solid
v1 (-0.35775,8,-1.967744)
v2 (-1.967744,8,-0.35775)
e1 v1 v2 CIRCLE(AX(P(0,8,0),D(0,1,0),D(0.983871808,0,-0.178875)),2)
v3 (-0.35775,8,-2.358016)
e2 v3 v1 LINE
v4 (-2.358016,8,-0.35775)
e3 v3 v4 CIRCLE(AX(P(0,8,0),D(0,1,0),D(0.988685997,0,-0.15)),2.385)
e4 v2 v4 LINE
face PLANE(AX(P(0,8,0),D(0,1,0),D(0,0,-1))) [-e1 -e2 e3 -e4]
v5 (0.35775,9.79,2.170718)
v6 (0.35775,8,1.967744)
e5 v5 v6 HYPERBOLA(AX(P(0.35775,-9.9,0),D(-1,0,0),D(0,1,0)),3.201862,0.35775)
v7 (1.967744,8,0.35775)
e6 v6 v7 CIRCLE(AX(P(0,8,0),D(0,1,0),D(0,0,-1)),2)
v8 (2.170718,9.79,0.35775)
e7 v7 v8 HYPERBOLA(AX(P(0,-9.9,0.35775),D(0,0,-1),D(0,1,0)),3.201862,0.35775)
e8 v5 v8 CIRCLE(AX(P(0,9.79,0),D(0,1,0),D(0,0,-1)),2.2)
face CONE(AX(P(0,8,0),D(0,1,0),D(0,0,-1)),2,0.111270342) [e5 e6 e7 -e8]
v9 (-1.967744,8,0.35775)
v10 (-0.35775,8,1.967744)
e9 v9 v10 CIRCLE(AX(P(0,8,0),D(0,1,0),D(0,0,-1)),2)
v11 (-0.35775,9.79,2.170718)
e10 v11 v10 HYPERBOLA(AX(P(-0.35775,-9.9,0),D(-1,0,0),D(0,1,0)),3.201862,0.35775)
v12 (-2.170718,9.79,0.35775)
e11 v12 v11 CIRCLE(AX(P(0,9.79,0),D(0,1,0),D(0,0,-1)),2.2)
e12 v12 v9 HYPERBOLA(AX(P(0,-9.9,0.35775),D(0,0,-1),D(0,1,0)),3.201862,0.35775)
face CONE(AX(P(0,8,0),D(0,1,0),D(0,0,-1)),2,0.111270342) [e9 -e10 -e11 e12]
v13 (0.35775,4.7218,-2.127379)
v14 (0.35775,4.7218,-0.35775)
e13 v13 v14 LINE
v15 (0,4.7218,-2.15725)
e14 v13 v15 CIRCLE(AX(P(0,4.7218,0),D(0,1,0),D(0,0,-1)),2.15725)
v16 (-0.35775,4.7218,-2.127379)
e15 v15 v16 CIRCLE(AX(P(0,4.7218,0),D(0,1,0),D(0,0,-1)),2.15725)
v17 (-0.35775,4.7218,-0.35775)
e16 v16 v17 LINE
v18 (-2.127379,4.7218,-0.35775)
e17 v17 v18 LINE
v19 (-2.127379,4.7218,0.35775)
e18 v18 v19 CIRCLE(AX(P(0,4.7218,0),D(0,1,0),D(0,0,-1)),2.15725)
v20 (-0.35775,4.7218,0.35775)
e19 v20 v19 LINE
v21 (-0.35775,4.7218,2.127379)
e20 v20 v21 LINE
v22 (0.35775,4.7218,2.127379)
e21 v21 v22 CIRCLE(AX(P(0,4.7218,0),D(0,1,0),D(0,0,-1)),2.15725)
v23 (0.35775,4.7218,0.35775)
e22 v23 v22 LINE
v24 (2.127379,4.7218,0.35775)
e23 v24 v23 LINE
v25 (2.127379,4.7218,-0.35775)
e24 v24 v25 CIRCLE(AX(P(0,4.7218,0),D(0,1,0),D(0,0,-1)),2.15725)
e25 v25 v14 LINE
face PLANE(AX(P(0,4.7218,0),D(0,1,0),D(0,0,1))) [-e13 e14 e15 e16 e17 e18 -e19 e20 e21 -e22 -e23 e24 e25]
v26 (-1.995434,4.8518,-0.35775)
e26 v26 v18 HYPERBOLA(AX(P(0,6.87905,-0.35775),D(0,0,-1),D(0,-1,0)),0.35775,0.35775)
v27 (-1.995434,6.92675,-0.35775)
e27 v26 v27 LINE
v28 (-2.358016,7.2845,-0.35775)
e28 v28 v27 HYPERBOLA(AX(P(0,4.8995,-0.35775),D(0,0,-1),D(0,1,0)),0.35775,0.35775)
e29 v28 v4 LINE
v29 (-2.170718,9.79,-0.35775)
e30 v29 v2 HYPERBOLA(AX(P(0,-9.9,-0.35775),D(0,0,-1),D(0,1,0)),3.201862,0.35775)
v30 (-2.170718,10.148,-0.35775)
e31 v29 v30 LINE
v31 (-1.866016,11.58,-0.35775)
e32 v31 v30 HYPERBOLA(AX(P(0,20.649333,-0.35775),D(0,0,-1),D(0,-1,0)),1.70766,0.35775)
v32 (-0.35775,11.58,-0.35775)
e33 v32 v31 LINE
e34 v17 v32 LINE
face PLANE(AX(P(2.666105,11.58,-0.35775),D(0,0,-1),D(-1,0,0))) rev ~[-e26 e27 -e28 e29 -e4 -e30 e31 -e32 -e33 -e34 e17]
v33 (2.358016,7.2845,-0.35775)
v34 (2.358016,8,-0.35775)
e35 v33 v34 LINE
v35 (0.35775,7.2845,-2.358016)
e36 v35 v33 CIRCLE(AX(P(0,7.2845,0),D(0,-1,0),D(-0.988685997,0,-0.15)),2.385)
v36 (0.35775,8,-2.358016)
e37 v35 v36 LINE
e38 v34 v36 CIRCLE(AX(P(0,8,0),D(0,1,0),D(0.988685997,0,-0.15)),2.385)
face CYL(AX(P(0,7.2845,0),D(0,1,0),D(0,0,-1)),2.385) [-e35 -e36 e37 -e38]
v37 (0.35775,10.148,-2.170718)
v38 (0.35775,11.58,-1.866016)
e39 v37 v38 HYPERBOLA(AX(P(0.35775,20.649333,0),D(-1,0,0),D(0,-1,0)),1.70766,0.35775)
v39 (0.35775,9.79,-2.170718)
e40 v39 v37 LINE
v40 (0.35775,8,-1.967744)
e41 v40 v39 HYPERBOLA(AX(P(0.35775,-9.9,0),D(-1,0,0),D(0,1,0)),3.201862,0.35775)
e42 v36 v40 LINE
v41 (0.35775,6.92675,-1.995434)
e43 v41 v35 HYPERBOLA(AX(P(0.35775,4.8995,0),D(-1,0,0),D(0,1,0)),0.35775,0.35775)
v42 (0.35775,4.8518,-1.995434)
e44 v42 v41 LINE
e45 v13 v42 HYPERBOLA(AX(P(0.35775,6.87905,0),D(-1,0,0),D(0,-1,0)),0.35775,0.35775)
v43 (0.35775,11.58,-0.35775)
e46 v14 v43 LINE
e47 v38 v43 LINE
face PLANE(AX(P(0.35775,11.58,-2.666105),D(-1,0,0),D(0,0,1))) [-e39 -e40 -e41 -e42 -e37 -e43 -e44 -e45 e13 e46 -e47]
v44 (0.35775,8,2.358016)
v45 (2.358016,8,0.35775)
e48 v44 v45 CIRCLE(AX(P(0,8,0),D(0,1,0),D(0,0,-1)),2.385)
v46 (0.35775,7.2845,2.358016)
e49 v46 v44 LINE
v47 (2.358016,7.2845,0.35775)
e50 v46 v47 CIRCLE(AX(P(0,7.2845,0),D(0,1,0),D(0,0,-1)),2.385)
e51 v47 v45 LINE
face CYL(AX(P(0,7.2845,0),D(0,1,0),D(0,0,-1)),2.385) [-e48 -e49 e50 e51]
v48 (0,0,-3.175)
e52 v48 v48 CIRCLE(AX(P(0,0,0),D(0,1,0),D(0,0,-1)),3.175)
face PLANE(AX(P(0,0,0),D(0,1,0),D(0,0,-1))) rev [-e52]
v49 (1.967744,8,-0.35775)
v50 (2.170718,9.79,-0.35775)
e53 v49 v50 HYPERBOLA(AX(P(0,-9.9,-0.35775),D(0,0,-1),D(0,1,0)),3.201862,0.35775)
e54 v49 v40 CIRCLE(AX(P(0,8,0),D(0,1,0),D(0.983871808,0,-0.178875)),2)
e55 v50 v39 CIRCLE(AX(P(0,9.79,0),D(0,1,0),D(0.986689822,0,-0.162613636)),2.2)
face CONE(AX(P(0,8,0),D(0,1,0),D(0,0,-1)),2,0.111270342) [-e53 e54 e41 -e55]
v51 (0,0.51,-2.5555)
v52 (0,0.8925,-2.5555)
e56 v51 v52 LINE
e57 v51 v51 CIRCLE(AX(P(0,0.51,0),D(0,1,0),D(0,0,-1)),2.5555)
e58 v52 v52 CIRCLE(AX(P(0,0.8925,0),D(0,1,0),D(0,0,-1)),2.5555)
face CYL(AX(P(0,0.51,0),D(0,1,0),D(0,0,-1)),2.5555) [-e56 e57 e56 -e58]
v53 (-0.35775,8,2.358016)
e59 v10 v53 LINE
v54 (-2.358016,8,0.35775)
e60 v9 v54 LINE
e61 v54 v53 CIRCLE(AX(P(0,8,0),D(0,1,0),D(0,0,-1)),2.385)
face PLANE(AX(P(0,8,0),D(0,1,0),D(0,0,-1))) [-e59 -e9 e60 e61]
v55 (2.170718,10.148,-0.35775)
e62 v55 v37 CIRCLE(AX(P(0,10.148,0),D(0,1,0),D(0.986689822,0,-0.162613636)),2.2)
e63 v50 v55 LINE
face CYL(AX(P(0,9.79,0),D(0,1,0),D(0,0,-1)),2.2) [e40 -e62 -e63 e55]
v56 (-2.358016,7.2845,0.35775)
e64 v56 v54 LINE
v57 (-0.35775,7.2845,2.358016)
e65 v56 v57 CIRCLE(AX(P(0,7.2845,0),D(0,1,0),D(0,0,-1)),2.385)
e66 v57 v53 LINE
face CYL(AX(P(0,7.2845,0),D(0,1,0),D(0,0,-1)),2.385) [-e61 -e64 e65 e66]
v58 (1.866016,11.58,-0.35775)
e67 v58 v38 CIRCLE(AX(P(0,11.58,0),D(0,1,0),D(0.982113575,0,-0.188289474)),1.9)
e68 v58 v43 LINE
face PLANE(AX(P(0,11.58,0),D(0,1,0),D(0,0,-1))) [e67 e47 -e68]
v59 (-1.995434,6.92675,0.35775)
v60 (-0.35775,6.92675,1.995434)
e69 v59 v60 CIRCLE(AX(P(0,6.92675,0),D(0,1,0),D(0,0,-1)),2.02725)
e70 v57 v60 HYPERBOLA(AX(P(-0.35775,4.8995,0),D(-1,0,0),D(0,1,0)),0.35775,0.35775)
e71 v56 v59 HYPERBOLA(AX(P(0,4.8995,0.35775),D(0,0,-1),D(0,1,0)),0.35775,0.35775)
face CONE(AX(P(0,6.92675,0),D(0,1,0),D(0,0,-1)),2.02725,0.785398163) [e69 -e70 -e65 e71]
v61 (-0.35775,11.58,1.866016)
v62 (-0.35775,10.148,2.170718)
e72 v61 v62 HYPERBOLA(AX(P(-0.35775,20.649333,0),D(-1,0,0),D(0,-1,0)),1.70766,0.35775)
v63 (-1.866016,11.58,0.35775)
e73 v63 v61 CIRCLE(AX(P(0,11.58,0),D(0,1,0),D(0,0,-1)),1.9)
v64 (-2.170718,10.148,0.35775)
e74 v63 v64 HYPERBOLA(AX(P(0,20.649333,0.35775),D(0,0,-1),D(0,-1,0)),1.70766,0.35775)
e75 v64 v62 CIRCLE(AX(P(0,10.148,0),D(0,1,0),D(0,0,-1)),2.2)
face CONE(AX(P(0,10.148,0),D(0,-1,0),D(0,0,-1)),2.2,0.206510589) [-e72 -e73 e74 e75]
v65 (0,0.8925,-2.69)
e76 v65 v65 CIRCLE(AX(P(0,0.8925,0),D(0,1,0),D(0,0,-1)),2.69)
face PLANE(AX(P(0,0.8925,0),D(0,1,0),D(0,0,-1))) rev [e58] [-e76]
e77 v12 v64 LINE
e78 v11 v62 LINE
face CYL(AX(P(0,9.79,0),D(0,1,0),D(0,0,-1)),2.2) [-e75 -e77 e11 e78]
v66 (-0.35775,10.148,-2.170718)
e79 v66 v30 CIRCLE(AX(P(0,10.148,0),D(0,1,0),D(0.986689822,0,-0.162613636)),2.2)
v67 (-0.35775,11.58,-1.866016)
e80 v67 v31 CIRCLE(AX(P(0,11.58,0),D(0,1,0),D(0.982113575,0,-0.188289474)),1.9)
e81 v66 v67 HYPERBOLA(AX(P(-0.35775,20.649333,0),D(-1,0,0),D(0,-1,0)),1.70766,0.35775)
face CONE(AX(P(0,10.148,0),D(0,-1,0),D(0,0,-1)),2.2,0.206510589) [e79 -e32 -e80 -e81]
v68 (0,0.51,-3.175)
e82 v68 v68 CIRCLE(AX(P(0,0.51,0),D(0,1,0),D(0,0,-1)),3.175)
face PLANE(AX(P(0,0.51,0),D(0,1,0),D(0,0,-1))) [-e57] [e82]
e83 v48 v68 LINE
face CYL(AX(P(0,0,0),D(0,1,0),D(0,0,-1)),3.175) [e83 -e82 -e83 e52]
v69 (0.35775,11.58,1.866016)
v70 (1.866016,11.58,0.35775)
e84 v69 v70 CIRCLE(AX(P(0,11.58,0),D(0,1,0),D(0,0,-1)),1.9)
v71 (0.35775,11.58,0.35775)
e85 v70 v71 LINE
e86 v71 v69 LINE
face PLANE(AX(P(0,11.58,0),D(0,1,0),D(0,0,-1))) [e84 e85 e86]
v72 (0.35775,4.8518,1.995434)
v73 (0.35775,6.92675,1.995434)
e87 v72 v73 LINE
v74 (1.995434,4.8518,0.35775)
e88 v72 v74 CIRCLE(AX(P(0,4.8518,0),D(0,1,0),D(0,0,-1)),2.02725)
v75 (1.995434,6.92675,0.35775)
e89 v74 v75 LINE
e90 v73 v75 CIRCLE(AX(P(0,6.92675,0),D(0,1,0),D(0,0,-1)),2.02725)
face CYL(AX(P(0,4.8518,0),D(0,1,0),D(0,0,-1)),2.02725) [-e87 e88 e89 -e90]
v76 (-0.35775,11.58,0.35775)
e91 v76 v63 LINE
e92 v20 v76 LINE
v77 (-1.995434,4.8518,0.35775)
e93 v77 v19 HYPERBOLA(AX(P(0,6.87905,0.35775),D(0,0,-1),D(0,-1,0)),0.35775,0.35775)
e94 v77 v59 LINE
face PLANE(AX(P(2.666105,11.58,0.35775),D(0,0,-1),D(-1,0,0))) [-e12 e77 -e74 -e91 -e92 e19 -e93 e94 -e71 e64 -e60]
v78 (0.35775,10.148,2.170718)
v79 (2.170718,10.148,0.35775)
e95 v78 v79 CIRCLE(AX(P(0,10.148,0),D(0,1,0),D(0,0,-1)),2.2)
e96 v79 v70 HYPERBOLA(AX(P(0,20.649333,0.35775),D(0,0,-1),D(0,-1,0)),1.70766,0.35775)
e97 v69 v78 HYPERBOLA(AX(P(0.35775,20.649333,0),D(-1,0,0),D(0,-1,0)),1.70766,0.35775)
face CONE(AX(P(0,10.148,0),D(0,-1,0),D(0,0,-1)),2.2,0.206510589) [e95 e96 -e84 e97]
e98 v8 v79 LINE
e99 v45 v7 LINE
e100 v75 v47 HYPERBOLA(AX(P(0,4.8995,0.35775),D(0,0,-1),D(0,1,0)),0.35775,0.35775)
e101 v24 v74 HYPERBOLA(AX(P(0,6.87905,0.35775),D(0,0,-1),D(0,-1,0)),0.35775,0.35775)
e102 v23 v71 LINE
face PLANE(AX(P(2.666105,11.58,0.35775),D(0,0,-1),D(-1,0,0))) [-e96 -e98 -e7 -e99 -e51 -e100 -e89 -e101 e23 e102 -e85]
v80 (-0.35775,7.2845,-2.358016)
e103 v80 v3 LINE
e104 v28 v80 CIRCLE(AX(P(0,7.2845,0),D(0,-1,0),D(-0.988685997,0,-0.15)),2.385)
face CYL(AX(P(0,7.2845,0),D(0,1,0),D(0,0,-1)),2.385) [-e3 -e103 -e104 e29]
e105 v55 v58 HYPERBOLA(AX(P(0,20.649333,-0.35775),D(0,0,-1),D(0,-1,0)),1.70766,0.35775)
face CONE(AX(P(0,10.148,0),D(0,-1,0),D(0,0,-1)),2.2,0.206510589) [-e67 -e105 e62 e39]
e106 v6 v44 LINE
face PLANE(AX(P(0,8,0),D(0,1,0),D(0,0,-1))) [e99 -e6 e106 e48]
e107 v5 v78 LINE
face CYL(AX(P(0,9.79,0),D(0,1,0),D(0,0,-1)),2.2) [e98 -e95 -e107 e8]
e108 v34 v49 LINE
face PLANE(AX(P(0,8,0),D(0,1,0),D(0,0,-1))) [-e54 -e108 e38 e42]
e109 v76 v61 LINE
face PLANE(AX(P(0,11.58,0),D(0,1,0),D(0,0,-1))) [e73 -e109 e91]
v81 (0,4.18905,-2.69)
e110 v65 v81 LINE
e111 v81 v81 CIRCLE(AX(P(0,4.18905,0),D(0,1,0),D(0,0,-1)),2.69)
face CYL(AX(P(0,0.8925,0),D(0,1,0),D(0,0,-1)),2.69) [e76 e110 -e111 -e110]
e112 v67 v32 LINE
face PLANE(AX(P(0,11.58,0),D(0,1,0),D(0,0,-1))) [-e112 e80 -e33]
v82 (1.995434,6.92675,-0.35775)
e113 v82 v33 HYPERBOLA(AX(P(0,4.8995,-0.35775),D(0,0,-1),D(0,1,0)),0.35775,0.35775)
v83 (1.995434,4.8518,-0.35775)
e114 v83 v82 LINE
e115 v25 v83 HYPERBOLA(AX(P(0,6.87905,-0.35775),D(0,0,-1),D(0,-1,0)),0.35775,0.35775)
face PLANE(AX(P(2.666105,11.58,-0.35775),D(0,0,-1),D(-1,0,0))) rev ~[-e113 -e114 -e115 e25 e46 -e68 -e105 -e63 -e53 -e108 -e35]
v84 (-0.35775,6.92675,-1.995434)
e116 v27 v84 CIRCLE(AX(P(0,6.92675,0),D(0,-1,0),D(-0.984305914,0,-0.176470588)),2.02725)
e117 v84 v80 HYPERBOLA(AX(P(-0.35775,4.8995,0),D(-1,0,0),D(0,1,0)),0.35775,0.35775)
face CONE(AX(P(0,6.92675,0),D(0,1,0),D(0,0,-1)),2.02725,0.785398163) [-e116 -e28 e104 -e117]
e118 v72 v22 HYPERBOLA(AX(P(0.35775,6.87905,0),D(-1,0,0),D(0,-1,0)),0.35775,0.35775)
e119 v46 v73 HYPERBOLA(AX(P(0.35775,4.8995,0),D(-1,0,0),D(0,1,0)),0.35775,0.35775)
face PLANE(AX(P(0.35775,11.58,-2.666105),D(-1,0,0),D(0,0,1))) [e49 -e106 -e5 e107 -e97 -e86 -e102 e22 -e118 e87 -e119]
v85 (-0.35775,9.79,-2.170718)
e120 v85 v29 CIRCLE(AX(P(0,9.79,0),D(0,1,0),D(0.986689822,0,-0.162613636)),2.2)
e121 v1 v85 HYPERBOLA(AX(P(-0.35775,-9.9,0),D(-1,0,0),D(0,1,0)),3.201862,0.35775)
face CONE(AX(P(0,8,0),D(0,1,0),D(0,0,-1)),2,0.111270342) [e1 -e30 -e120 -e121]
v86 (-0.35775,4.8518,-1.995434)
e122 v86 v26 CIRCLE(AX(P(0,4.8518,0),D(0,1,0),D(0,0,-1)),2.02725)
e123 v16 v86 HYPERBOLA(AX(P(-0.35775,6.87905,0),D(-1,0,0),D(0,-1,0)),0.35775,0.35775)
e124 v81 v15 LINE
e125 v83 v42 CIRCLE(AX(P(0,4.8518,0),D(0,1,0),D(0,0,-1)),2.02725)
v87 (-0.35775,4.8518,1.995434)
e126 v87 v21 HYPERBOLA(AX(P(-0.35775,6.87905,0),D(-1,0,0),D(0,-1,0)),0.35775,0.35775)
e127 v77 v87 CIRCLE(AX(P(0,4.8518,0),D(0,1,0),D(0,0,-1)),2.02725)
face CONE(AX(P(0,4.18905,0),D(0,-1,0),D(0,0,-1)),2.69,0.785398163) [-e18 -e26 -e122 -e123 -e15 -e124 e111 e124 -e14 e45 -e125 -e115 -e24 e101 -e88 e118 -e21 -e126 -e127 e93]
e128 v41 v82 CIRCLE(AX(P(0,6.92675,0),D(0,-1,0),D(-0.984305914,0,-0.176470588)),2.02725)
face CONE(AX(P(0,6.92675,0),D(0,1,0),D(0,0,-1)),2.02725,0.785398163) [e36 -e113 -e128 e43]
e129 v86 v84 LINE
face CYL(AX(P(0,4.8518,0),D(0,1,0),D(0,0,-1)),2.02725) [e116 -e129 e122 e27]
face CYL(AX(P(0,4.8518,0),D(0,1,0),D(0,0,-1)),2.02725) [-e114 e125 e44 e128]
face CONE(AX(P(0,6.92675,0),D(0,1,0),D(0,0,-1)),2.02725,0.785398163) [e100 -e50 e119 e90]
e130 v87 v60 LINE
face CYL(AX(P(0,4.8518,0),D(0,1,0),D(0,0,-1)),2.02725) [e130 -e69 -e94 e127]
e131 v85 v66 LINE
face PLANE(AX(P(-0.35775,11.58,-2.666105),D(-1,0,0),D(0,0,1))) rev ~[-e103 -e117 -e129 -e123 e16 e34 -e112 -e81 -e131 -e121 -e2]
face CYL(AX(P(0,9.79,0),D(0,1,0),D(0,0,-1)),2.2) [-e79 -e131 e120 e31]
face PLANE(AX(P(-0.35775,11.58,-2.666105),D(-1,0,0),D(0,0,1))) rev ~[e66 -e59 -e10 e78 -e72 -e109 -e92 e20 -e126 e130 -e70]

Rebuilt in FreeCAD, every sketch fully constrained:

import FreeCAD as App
import Part
import Sketcher

V = App.Vector
Q = App.Units.Quantity

doc = App.newDocument("Part")
body = doc.addObject("PartDesign::Body", "Body")

# Sketch on XY plane
sketch1 = body.newObject("Sketcher::SketchObject", "Sketch")
sketch1.AttachmentSupport = (doc.getObject("XY_Plane"), [""])
sketch1.MapMode = "FlatFace"
sketch1.addGeometry(Part.LineSegment(V(2.56, 0.51, 0), V(2.56, 0.89, 0)), False)
sketch1.addGeometry(Part.LineSegment(V(2.56, 0.89, 0), V(2.69, 0.89, 0)), False)
sketch1.addGeometry(Part.LineSegment(V(2.69, 0.89, 0), V(2.69, 4.19, 0)), False)
sketch1.addGeometry(Part.LineSegment(V(2.69, 4.19, 0), V(2.03, 4.85, 0)), False)
sketch1.addGeometry(Part.LineSegment(V(2.03, 4.85, 0), V(2.03, 6.93, 0)), False)
sketch1.addGeometry(Part.LineSegment(V(2.03, 6.93, 0), V(2.38, 7.28, 0)), False)
sketch1.addGeometry(Part.LineSegment(V(2.38, 7.28, 0), V(2.38, 8, 0)), False)
sketch1.addGeometry(Part.LineSegment(V(2.38, 8, 0), V(2, 8, 0)), False)
sketch1.addGeometry(Part.LineSegment(V(2, 8, 0), V(2.2, 9.79, 0)), False)
sketch1.addGeometry(Part.LineSegment(V(2.2, 9.79, 0), V(2.2, 10.15, 0)), False)
sketch1.addGeometry(Part.LineSegment(V(2.2, 10.15, 0), V(1.9, 11.58, 0)), False)
sketch1.addGeometry(Part.LineSegment(V(1.9, 11.58, 0), V(0, 11.58, 0)), False)
sketch1.addGeometry(Part.LineSegment(V(0, 11.58, 0), V(0, 0, 0)), False)
sketch1.addGeometry(Part.LineSegment(V(0, 0, 0), V(3.17, 0, 0)), False)
sketch1.addGeometry(Part.LineSegment(V(3.17, 0, 0), V(3.17, 0.51, 0)), False)
sketch1.addGeometry(Part.LineSegment(V(3.17, 0.51, 0), V(2.56, 0.51, 0)), False)
sketch1.addConstraint(Sketcher.Constraint("Coincident", 0, 2, 1, 1))
sketch1.addConstraint(Sketcher.Constraint("Coincident", 1, 2, 2, 1))
sketch1.addConstraint(Sketcher.Constraint("Coincident", 2, 2, 3, 1))
sketch1.addConstraint(Sketcher.Constraint("Coincident", 3, 2, 4, 1))
sketch1.addConstraint(Sketcher.Constraint("Coincident", 4, 2, 5, 1))
sketch1.addConstraint(Sketcher.Constraint("Coincident", 5, 2, 6, 1))
sketch1.addConstraint(Sketcher.Constraint("Coincident", 6, 2, 7, 1))
sketch1.addConstraint(Sketcher.Constraint("Coincident", 7, 2, 8, 1))
sketch1.addConstraint(Sketcher.Constraint("Coincident", 8, 2, 9, 1))
sketch1.addConstraint(Sketcher.Constraint("Coincident", 9, 2, 10, 1))
sketch1.addConstraint(Sketcher.Constraint("Coincident", 10, 2, 11, 1))
sketch1.addConstraint(Sketcher.Constraint("Coincident", 11, 2, 12, 1))
sketch1.addConstraint(Sketcher.Constraint("Coincident", 12, 2, 13, 1))
sketch1.addConstraint(Sketcher.Constraint("Coincident", 13, 2, 14, 1))
sketch1.addConstraint(Sketcher.Constraint("Coincident", 14, 2, 15, 1))
sketch1.addConstraint(Sketcher.Constraint("Coincident", 15, 2, 0, 1))
sketch1.addConstraint(Sketcher.Constraint("Vertical", 0))
sketch1.addConstraint(Sketcher.Constraint("Horizontal", 1))
sketch1.addConstraint(Sketcher.Constraint("Vertical", 2))
sketch1.addConstraint(Sketcher.Constraint("Vertical", 4))
sketch1.addConstraint(Sketcher.Constraint("Vertical", 6))
sketch1.addConstraint(Sketcher.Constraint("Horizontal", 7))
sketch1.addConstraint(Sketcher.Constraint("Vertical", 9))
sketch1.addConstraint(Sketcher.Constraint("Horizontal", 11))
sketch1.addConstraint(Sketcher.Constraint("Vertical", 12))
sketch1.addConstraint(Sketcher.Constraint("Horizontal", 13))
sketch1.addConstraint(Sketcher.Constraint("Vertical", 14))
sketch1.addConstraint(Sketcher.Constraint("Horizontal", 15))
sketch1.addConstraint(Sketcher.Constraint("Coincident", 12, 2, -1, 1))
sketch1.addConstraint(Sketcher.Constraint("Perpendicular", 3, 5))
sketch1.addConstraint(Sketcher.Constraint("Angle", 3, Q("135 deg")))
sketch1.addConstraint(Sketcher.Constraint("DistanceX", 11, 2, 11, 1, 1.9))
sketch1.addConstraint(Sketcher.Constraint("DistanceY", -1, 1, 6, 2, 8.0))
sketch1.addConstraint(Sketcher.Constraint("DistanceX", -1, 1, 7, 2, 2.0))
sketch1.addConstraint(Sketcher.Constraint("DistanceY", 12, 2, 12, 1, 11.58))
sketch1.addConstraint(Sketcher.Constraint("DistanceY", 14, 1, 14, 2, 0.51))
sketch1.addConstraint(Sketcher.Constraint("DistanceX", -1, 1, 8, 2, 2.2))
sketch1.addConstraint(Sketcher.Constraint("DistanceX", 7, 2, 7, 1, 0.385))
sketch1.addConstraint(Sketcher.Constraint("DistanceX", 13, 1, 13, 2, 3.175))
sketch1.addConstraint(Sketcher.Constraint("DistanceY", 9, 1, 9, 2, 0.358))
sketch1.addConstraint(Sketcher.Constraint("DistanceX", -1, 1, 1, 2, 2.69))
sketch1.addConstraint(Sketcher.Constraint("DistanceY", -1, 1, 8, 2, 9.79))
sketch1.addConstraint(Sketcher.Constraint("DistanceX", 1, 1, 1, 2, 0.1345))
sketch1.addConstraint(Sketcher.Constraint("DistanceY", 0, 1, 0, 2, 0.3825))
sketch1.addConstraint(Sketcher.Constraint("DistanceY", 6, 1, 6, 2, 0.7155))
sketch1.addConstraint(Sketcher.Constraint("DistanceY", 2, 1, 2, 2, 3.29655))
sketch1.addConstraint(Sketcher.Constraint("DistanceY", 4, 1, 4, 2, 2.07495))
revolution = body.newObject("PartDesign::Revolution", "Revolution")
revolution.Profile = sketch1
revolution.ReferenceAxis = (sketch1, ["V_Axis"])
revolution.Angle = 360

# Sketch on XZ plane
sketch2 = body.newObject("Sketcher::SketchObject", "Sketch001")
sketch2.AttachmentSupport = (doc.getObject("XZ_Plane"), [""])
sketch2.MapMode = "FlatFace"
sketch2.AttachmentOffset = App.Placement(V(0, 0, -11.58), App.Rotation())
sketch2.addGeometry(Part.LineSegment(V(2.7, 0.4, 0), V(2.7, -0.4, 0)), False)
sketch2.addGeometry(Part.LineSegment(V(2.7, -0.4, 0), V(-2.7, -0.4, 0)), False)
sketch2.addGeometry(Part.LineSegment(V(-2.7, -0.4, 0), V(-2.7, 0.4, 0)), False)
sketch2.addGeometry(Part.LineSegment(V(-2.7, 0.4, 0), V(2.7, 0.4, 0)), False)
sketch2.addConstraint(Sketcher.Constraint("Coincident", 0, 2, 1, 1))
sketch2.addConstraint(Sketcher.Constraint("Coincident", 1, 2, 2, 1))
sketch2.addConstraint(Sketcher.Constraint("Coincident", 2, 2, 3, 1))
sketch2.addConstraint(Sketcher.Constraint("Coincident", 3, 2, 0, 1))
sketch2.addConstraint(Sketcher.Constraint("Vertical", 0))
sketch2.addConstraint(Sketcher.Constraint("Horizontal", 1))
sketch2.addConstraint(Sketcher.Constraint("Vertical", 2))
sketch2.addConstraint(Sketcher.Constraint("Horizontal", 3))
sketch2.addConstraint(Sketcher.Constraint("Symmetric", 0, 2, 2, 2, -1, 1))
sketch2.addConstraint(Sketcher.Constraint("DistanceY", 0, 2, 0, 1, 0.7155))
sketch2.addConstraint(Sketcher.Constraint("DistanceX", 1, 2, 1, 1, 5.33221))
pocket1 = body.newObject("PartDesign::Pocket", "Pocket")
pocket1.Profile = sketch2
pocket1.Length = 6.8582
pocket1.Reversed = True
doc.recompute()

polarpattern = body.newObject("PartDesign::PolarPattern", "PolarPattern")
polarpattern.Originals = [pocket1]
polarpattern.Axis = (doc.getObject("Y_Axis"), [""])
polarpattern.Angle = 90
polarpattern.Occurrences = 2
body.Tip = polarpattern

doc.recompute()
